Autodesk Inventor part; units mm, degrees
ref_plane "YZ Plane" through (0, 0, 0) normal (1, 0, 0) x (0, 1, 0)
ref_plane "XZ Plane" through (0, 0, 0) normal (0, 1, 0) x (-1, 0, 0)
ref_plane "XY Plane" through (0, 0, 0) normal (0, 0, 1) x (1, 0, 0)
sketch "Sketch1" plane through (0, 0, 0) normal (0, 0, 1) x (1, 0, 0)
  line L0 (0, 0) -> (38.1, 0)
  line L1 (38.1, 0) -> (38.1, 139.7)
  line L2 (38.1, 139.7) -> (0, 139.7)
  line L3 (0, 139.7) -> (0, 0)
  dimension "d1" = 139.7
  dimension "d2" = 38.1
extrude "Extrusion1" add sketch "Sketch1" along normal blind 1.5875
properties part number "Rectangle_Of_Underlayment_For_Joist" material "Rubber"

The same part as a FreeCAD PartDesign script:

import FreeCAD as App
import Part
import Sketcher
from FreeCAD import Vector
Q = App.Units.Quantity

doc = App.newDocument("Part")
body = doc.addObject("PartDesign::Body", "Body")

sketch1 = body.newObject("Sketcher::SketchObject", "Sketch")
sketch1.AttachmentSupport = (doc.getObject("XY_Plane"), [""])
sketch1.MapMode = "FlatFace"
sketch1.addGeometry(Part.LineSegment(Vector(0, 140, 0), Vector(0, 0, 0)), False)
sketch1.addGeometry(Part.LineSegment(Vector(0, 0, 0), Vector(38, 0, 0)), False)
sketch1.addGeometry(Part.LineSegment(Vector(38, 0, 0), Vector(38, 140, 0)), False)
sketch1.addGeometry(Part.LineSegment(Vector(38, 140, 0), Vector(0, 140, 0)), False)
sketch1.addConstraint(Sketcher.Constraint("Coincident", 0, 2, 1, 1))
sketch1.addConstraint(Sketcher.Constraint("Coincident", 1, 2, 2, 1))
sketch1.addConstraint(Sketcher.Constraint("Coincident", 2, 2, 3, 1))
sketch1.addConstraint(Sketcher.Constraint("Coincident", 3, 2, 0, 1))
sketch1.addConstraint(Sketcher.Constraint("Vertical", 0))
sketch1.addConstraint(Sketcher.Constraint("Horizontal", 1))
sketch1.addConstraint(Sketcher.Constraint("Vertical", 2))
sketch1.addConstraint(Sketcher.Constraint("Horizontal", 3))
sketch1.addConstraint(Sketcher.Constraint("Coincident", 0, 2, -1, 1))
sketch1.addConstraint(Sketcher.Constraint("DistanceX", 1, 1, 1, 2, Q("1.5 in")))
sketch1.addConstraint(Sketcher.Constraint("DistanceY", 0, 2, 0, 1, Q("5.5 in")))
pad1 = body.newObject("PartDesign::Pad", "Pad")
pad1.Profile = sketch1
pad1.Length = Q("0.0625 in")

doc.recompute()
